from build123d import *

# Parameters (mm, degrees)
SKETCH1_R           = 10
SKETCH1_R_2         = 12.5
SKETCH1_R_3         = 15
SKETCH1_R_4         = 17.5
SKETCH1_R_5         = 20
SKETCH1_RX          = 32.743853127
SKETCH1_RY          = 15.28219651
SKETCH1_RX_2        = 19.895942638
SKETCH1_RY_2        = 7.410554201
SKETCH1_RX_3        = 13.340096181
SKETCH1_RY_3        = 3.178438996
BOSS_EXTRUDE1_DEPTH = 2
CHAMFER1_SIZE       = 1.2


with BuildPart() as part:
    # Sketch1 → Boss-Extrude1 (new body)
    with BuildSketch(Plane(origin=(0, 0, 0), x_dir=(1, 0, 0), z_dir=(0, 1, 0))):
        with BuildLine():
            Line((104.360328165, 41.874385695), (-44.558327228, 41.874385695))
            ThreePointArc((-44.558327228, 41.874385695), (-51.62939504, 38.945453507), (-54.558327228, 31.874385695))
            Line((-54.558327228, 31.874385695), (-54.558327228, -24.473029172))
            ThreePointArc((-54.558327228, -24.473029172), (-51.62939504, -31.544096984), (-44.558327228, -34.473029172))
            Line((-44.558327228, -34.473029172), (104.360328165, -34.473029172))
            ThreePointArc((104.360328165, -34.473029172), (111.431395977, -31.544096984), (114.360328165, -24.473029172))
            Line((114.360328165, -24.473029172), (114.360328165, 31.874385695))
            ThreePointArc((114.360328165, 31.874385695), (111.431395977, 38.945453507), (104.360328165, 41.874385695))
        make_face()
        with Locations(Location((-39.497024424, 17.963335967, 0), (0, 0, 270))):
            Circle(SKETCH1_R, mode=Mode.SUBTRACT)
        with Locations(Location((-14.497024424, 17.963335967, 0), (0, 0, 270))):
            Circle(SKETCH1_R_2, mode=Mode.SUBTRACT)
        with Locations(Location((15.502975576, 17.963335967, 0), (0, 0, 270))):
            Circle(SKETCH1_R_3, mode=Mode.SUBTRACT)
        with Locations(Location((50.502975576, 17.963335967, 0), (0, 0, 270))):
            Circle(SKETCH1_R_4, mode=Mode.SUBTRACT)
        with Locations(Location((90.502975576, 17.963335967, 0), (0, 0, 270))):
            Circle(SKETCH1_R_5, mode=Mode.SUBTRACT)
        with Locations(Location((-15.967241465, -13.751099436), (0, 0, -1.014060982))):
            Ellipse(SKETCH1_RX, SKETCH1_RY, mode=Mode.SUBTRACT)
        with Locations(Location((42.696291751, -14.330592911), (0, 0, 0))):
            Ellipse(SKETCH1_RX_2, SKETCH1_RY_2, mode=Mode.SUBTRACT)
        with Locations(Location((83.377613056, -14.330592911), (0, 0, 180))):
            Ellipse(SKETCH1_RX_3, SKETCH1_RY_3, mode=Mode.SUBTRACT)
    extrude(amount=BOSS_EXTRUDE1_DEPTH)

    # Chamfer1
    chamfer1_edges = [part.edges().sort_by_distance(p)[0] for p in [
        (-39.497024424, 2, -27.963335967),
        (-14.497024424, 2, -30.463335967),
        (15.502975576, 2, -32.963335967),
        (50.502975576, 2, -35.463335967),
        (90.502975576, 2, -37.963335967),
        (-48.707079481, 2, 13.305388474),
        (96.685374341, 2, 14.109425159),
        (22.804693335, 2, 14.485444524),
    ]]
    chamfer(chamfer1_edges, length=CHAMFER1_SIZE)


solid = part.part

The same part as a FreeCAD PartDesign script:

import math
import FreeCAD as App
import Part
import Sketcher
Q = App.Units.Quantity


def edges_at(feature, points):
    """Names of the edges that pass closest to the given points."""
    edges = feature.Shape.Edges
    near = lambda p: min(range(len(edges)), key=lambda i: edges[i].distToShape(Part.Vertex(*p))[0])
    return sorted({f"Edge{near(p) + 1}" for p in points})

doc = App.newDocument("Part")
body = doc.addObject("PartDesign::Body", "Body")

# Sketch on XZ plane
sketch1 = doc.addObject("Sketcher::SketchObject", "Sketch")
body.addObject(sketch1)
sketch1.AttachmentSupport = (doc.XZ_Plane, [""])
sketch1.MapMode = "FlatFace"
sketch1.addGeometry(Part.LineSegment(App.Vector(104.360328, -41.874386, 0), App.Vector(-44.558327, -41.874386, 0)), False)
sketch1.addGeometry(Part.ArcOfCircle(Part.Circle(App.Vector(-44.558327, -31.874386, 0), App.Vector(0, 0, 1), 10), math.radians(180), math.radians(270)), False)
sketch1.addGeometry(Part.LineSegment(App.Vector(-54.558327, -31.874386, 0), App.Vector(-54.558327, 24.473029, 0)), False)
sketch1.addGeometry(Part.ArcOfCircle(Part.Circle(App.Vector(-44.558327, 24.473029, 0), App.Vector(0, 0, 1), 10), math.radians(90), math.radians(180)), False)
sketch1.addGeometry(Part.LineSegment(App.Vector(-44.558327, 34.473029, 0), App.Vector(104.360328, 34.473029, 0)), False)
sketch1.addGeometry(Part.ArcOfCircle(Part.Circle(App.Vector(104.360328, 24.473029, 0), App.Vector(0, 0, 1), 10), math.radians(0), math.radians(90)), False)
sketch1.addGeometry(Part.LineSegment(App.Vector(114.360328, 24.473029, 0), App.Vector(114.360328, -31.874386, 0)), False)
sketch1.addGeometry(Part.ArcOfCircle(Part.Circle(App.Vector(104.360328, -31.874386, 0), App.Vector(0, 0, 1), 10), math.radians(-90), math.radians(0)), False)
sketch1.addGeometry(Part.Ellipse(App.Vector(16.771483, 14.330593, 0), App.Vector(-16.237702, 29.030902, 0), App.Vector(-15.967241, 13.751099, 0)), False)
sketch1.addGeometry(Part.Ellipse(App.Vector(62.592234, 14.330593, 0), App.Vector(42.696292, 21.741147, 0), App.Vector(42.696292, 14.330593, 0)), False)
sketch1.addGeometry(Part.Ellipse(App.Vector(70.037517, 14.330593, 0), App.Vector(83.377613, 11.152154, 0), App.Vector(83.377613, 14.330593, 0)), False)
sketch1.addGeometry(Part.Circle(App.Vector(-39.497024, -17.963336, 0), App.Vector(0, 0, 1), 10), False)
sketch1.addGeometry(Part.Circle(App.Vector(-14.497024, -17.963336, 0), App.Vector(0, 0, 1), 12.5), False)
sketch1.addGeometry(Part.Circle(App.Vector(15.502976, -17.963336, 0), App.Vector(0, 0, 1), 15), False)
sketch1.addGeometry(Part.Circle(App.Vector(50.502976, -17.963336, 0), App.Vector(0, 0, 1), 17.5), False)
sketch1.addGeometry(Part.Circle(App.Vector(90.502976, -17.963336, 0), App.Vector(0, 0, 1), 20), False)
sketch1.addConstraint(Sketcher.Constraint("Block", 8))
sketch1.addConstraint(Sketcher.Constraint("Block", 9))
sketch1.addConstraint(Sketcher.Constraint("Block", 10))
sketch1.addConstraint(Sketcher.Constraint("Tangent", 0, 2, 1, 2))
sketch1.addConstraint(Sketcher.Constraint("Tangent", 1, 1, 2, 1))
sketch1.addConstraint(Sketcher.Constraint("Tangent", 2, 2, 3, 2))
sketch1.addConstraint(Sketcher.Constraint("Tangent", 3, 1, 4, 1))
sketch1.addConstraint(Sketcher.Constraint("Tangent", 4, 2, 5, 2))
sketch1.addConstraint(Sketcher.Constraint("Tangent", 5, 1, 6, 1))
sketch1.addConstraint(Sketcher.Constraint("Tangent", 6, 2, 7, 2))
sketch1.addConstraint(Sketcher.Constraint("Tangent", 7, 1, 0, 1))
sketch1.addConstraint(Sketcher.Constraint("Horizontal", 0))
sketch1.addConstraint(Sketcher.Constraint("Vertical", 2))
sketch1.addConstraint(Sketcher.Constraint("Horizontal", 4))
sketch1.addConstraint(Sketcher.Constraint("Vertical", 6))
sketch1.addConstraint(Sketcher.Constraint("Equal", 1, 3))
sketch1.addConstraint(Sketcher.Constraint("Equal", 3, 5))
sketch1.addConstraint(Sketcher.Constraint("Equal", 5, 7))
sketch1.addConstraint(Sketcher.Constraint("Equal", 7, 11))
sketch1.addConstraint(Sketcher.Constraint("Horizontal", 11, 3, 12, 3))
sketch1.addConstraint(Sketcher.Constraint("Horizontal", 12, 3, 13, 3))
sketch1.addConstraint(Sketcher.Constraint("Horizontal", 13, 3, 14, 3))
sketch1.addConstraint(Sketcher.Constraint("Horizontal", 14, 3, 15, 3))
sketch1.addConstraint(Sketcher.Constraint("Diameter", 11, Q("20 mm")))
sketch1.addConstraint(Sketcher.Constraint("Diameter", 12, Q("25 mm")))
sketch1.addConstraint(Sketcher.Constraint("Diameter", 13, Q("30 mm")))
sketch1.addConstraint(Sketcher.Constraint("Diameter", 14, Q("35 mm")))
sketch1.addConstraint(Sketcher.Constraint("Diameter", 15, Q("40 mm")))
sketch1.addConstraint(Sketcher.Constraint("DistanceX", 11, 3, 12, 3, Q("25 mm")))
sketch1.addConstraint(Sketcher.Constraint("DistanceX", 12, 3, 13, 3, Q("30 mm")))
sketch1.addConstraint(Sketcher.Constraint("DistanceX", 13, 3, 14, 3, Q("35 mm")))
sketch1.addConstraint(Sketcher.Constraint("DistanceX", 14, 3, 15, 3, Q("40 mm")))
sketch1.addConstraint(Sketcher.Constraint("DistanceX", 0, 2, 0, 1, Q("148.918655 mm")))
sketch1.addConstraint(Sketcher.Constraint("DistanceY", 2, 1, 2, 2, Q("56.347415 mm")))
sketch1.addConstraint(Sketcher.Constraint("DistanceY", -1, 1, 3, 3, Q("24.473029 mm")))
sketch1.addConstraint(Sketcher.Constraint("DistanceX", -1, 1, 5, 3, Q("104.360328 mm")))
sketch1.addConstraint(Sketcher.Constraint("DistanceY", 1, 3, 11, 3, Q("13.91105 mm")))
sketch1.addConstraint(Sketcher.Constraint("DistanceX", 11, 3, -1, 1, Q("39.497024 mm")))
pad1 = doc.addObject("PartDesign::Pad", "Pad")
body.addObject(pad1)
pad1.Profile = sketch1
pad1.Length = 2
pad1.Reversed = True
doc.recompute()

chamfer = doc.addObject("PartDesign::Chamfer", "Chamfer")
body.addObject(chamfer)
chamfer.Base = (pad1, edges_at(pad1, [
    (-39.497, 2, -27.963),
    (-14.497, 2, -30.463),
    (15.503, 2, -32.963),
    (50.503, 2, -35.463),
    (90.503, 2, -37.963),
    (-48.707, 2, 13.305),
    (96.685, 2, 14.109),
    (22.805, 2, 14.485),
]))
chamfer.Size = 1.2

doc.recompute()
